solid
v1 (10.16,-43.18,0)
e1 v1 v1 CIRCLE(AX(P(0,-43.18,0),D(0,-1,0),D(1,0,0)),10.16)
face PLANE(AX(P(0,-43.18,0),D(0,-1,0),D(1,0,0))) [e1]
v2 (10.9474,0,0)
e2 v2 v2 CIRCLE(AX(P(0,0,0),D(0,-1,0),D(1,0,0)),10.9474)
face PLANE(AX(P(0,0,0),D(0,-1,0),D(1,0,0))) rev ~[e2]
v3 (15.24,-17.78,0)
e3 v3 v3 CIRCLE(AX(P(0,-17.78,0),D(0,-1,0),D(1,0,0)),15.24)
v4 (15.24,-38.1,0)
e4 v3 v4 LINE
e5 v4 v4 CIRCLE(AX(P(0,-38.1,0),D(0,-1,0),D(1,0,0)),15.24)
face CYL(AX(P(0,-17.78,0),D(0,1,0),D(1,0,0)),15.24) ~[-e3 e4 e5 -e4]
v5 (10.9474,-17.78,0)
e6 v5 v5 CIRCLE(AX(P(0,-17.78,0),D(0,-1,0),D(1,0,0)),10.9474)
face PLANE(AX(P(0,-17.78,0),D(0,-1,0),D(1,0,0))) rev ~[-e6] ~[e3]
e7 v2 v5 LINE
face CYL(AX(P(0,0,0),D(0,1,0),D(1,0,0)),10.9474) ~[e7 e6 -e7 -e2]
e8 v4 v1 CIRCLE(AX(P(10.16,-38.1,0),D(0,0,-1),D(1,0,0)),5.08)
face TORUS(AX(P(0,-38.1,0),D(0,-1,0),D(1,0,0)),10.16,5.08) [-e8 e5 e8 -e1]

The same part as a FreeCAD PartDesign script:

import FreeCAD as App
import Part
import Sketcher

V = App.Vector
Q = App.Units.Quantity


def edges_at(feature, points):
    """Names of the edges that pass closest to the given points."""
    edges = feature.Shape.Edges
    near = lambda p: min(range(len(edges)), key=lambda i: edges[i].distToShape(Part.Vertex(*p))[0])
    return sorted({f"Edge{near(p) + 1}" for p in points})

doc = App.newDocument("Part")
body = doc.addObject("PartDesign::Body", "Body")

# Sketch on XZ plane
sketch1 = body.newObject("Sketcher::SketchObject", "Sketch")
sketch1.AttachmentSupport = (doc.getObject("XZ_Plane"), [""])
sketch1.MapMode = "FlatFace"
sketch1.addGeometry(Part.Circle(V(0, 0, 0), V(0, 0, 1), 11), False)
sketch1.addConstraint(Sketcher.Constraint("Coincident", 0, 3, -1, 1))
sketch1.addConstraint(Sketcher.Constraint("Diameter", 0, Q("0.862 in")))
pad1 = body.newObject("PartDesign::Pad", "Pad")
pad1.Profile = sketch1
pad1.Length = Q("0.7 in")

# Sketch on XZ plane
sketch2 = body.newObject("Sketcher::SketchObject", "Sketch001")
sketch2.AttachmentSupport = (doc.getObject("XZ_Plane"), [""])
sketch2.MapMode = "FlatFace"
sketch2.AttachmentOffset = App.Placement(V(0, 0, 0.7 * 25.4), App.Rotation())
sketch2.addGeometry(Part.Circle(V(0, 0, 0), V(0, 0, 1), 15), False)
sketch2.addConstraint(Sketcher.Constraint("Coincident", 0, 3, -1, 1))
sketch2.addConstraint(Sketcher.Constraint("Diameter", 0, Q("1.2 in")))
pad2 = body.newObject("PartDesign::Pad", "Pad001")
pad2.Profile = sketch2
pad2.Length = Q("1 in")
doc.recompute()

fillet = body.newObject("PartDesign::Fillet", "Fillet")
fillet.Base = (pad2, edges_at(pad2, [(-15.24, -43.18, 0)]))
fillet.Radius = Q("0.2 in")

doc.recompute()
